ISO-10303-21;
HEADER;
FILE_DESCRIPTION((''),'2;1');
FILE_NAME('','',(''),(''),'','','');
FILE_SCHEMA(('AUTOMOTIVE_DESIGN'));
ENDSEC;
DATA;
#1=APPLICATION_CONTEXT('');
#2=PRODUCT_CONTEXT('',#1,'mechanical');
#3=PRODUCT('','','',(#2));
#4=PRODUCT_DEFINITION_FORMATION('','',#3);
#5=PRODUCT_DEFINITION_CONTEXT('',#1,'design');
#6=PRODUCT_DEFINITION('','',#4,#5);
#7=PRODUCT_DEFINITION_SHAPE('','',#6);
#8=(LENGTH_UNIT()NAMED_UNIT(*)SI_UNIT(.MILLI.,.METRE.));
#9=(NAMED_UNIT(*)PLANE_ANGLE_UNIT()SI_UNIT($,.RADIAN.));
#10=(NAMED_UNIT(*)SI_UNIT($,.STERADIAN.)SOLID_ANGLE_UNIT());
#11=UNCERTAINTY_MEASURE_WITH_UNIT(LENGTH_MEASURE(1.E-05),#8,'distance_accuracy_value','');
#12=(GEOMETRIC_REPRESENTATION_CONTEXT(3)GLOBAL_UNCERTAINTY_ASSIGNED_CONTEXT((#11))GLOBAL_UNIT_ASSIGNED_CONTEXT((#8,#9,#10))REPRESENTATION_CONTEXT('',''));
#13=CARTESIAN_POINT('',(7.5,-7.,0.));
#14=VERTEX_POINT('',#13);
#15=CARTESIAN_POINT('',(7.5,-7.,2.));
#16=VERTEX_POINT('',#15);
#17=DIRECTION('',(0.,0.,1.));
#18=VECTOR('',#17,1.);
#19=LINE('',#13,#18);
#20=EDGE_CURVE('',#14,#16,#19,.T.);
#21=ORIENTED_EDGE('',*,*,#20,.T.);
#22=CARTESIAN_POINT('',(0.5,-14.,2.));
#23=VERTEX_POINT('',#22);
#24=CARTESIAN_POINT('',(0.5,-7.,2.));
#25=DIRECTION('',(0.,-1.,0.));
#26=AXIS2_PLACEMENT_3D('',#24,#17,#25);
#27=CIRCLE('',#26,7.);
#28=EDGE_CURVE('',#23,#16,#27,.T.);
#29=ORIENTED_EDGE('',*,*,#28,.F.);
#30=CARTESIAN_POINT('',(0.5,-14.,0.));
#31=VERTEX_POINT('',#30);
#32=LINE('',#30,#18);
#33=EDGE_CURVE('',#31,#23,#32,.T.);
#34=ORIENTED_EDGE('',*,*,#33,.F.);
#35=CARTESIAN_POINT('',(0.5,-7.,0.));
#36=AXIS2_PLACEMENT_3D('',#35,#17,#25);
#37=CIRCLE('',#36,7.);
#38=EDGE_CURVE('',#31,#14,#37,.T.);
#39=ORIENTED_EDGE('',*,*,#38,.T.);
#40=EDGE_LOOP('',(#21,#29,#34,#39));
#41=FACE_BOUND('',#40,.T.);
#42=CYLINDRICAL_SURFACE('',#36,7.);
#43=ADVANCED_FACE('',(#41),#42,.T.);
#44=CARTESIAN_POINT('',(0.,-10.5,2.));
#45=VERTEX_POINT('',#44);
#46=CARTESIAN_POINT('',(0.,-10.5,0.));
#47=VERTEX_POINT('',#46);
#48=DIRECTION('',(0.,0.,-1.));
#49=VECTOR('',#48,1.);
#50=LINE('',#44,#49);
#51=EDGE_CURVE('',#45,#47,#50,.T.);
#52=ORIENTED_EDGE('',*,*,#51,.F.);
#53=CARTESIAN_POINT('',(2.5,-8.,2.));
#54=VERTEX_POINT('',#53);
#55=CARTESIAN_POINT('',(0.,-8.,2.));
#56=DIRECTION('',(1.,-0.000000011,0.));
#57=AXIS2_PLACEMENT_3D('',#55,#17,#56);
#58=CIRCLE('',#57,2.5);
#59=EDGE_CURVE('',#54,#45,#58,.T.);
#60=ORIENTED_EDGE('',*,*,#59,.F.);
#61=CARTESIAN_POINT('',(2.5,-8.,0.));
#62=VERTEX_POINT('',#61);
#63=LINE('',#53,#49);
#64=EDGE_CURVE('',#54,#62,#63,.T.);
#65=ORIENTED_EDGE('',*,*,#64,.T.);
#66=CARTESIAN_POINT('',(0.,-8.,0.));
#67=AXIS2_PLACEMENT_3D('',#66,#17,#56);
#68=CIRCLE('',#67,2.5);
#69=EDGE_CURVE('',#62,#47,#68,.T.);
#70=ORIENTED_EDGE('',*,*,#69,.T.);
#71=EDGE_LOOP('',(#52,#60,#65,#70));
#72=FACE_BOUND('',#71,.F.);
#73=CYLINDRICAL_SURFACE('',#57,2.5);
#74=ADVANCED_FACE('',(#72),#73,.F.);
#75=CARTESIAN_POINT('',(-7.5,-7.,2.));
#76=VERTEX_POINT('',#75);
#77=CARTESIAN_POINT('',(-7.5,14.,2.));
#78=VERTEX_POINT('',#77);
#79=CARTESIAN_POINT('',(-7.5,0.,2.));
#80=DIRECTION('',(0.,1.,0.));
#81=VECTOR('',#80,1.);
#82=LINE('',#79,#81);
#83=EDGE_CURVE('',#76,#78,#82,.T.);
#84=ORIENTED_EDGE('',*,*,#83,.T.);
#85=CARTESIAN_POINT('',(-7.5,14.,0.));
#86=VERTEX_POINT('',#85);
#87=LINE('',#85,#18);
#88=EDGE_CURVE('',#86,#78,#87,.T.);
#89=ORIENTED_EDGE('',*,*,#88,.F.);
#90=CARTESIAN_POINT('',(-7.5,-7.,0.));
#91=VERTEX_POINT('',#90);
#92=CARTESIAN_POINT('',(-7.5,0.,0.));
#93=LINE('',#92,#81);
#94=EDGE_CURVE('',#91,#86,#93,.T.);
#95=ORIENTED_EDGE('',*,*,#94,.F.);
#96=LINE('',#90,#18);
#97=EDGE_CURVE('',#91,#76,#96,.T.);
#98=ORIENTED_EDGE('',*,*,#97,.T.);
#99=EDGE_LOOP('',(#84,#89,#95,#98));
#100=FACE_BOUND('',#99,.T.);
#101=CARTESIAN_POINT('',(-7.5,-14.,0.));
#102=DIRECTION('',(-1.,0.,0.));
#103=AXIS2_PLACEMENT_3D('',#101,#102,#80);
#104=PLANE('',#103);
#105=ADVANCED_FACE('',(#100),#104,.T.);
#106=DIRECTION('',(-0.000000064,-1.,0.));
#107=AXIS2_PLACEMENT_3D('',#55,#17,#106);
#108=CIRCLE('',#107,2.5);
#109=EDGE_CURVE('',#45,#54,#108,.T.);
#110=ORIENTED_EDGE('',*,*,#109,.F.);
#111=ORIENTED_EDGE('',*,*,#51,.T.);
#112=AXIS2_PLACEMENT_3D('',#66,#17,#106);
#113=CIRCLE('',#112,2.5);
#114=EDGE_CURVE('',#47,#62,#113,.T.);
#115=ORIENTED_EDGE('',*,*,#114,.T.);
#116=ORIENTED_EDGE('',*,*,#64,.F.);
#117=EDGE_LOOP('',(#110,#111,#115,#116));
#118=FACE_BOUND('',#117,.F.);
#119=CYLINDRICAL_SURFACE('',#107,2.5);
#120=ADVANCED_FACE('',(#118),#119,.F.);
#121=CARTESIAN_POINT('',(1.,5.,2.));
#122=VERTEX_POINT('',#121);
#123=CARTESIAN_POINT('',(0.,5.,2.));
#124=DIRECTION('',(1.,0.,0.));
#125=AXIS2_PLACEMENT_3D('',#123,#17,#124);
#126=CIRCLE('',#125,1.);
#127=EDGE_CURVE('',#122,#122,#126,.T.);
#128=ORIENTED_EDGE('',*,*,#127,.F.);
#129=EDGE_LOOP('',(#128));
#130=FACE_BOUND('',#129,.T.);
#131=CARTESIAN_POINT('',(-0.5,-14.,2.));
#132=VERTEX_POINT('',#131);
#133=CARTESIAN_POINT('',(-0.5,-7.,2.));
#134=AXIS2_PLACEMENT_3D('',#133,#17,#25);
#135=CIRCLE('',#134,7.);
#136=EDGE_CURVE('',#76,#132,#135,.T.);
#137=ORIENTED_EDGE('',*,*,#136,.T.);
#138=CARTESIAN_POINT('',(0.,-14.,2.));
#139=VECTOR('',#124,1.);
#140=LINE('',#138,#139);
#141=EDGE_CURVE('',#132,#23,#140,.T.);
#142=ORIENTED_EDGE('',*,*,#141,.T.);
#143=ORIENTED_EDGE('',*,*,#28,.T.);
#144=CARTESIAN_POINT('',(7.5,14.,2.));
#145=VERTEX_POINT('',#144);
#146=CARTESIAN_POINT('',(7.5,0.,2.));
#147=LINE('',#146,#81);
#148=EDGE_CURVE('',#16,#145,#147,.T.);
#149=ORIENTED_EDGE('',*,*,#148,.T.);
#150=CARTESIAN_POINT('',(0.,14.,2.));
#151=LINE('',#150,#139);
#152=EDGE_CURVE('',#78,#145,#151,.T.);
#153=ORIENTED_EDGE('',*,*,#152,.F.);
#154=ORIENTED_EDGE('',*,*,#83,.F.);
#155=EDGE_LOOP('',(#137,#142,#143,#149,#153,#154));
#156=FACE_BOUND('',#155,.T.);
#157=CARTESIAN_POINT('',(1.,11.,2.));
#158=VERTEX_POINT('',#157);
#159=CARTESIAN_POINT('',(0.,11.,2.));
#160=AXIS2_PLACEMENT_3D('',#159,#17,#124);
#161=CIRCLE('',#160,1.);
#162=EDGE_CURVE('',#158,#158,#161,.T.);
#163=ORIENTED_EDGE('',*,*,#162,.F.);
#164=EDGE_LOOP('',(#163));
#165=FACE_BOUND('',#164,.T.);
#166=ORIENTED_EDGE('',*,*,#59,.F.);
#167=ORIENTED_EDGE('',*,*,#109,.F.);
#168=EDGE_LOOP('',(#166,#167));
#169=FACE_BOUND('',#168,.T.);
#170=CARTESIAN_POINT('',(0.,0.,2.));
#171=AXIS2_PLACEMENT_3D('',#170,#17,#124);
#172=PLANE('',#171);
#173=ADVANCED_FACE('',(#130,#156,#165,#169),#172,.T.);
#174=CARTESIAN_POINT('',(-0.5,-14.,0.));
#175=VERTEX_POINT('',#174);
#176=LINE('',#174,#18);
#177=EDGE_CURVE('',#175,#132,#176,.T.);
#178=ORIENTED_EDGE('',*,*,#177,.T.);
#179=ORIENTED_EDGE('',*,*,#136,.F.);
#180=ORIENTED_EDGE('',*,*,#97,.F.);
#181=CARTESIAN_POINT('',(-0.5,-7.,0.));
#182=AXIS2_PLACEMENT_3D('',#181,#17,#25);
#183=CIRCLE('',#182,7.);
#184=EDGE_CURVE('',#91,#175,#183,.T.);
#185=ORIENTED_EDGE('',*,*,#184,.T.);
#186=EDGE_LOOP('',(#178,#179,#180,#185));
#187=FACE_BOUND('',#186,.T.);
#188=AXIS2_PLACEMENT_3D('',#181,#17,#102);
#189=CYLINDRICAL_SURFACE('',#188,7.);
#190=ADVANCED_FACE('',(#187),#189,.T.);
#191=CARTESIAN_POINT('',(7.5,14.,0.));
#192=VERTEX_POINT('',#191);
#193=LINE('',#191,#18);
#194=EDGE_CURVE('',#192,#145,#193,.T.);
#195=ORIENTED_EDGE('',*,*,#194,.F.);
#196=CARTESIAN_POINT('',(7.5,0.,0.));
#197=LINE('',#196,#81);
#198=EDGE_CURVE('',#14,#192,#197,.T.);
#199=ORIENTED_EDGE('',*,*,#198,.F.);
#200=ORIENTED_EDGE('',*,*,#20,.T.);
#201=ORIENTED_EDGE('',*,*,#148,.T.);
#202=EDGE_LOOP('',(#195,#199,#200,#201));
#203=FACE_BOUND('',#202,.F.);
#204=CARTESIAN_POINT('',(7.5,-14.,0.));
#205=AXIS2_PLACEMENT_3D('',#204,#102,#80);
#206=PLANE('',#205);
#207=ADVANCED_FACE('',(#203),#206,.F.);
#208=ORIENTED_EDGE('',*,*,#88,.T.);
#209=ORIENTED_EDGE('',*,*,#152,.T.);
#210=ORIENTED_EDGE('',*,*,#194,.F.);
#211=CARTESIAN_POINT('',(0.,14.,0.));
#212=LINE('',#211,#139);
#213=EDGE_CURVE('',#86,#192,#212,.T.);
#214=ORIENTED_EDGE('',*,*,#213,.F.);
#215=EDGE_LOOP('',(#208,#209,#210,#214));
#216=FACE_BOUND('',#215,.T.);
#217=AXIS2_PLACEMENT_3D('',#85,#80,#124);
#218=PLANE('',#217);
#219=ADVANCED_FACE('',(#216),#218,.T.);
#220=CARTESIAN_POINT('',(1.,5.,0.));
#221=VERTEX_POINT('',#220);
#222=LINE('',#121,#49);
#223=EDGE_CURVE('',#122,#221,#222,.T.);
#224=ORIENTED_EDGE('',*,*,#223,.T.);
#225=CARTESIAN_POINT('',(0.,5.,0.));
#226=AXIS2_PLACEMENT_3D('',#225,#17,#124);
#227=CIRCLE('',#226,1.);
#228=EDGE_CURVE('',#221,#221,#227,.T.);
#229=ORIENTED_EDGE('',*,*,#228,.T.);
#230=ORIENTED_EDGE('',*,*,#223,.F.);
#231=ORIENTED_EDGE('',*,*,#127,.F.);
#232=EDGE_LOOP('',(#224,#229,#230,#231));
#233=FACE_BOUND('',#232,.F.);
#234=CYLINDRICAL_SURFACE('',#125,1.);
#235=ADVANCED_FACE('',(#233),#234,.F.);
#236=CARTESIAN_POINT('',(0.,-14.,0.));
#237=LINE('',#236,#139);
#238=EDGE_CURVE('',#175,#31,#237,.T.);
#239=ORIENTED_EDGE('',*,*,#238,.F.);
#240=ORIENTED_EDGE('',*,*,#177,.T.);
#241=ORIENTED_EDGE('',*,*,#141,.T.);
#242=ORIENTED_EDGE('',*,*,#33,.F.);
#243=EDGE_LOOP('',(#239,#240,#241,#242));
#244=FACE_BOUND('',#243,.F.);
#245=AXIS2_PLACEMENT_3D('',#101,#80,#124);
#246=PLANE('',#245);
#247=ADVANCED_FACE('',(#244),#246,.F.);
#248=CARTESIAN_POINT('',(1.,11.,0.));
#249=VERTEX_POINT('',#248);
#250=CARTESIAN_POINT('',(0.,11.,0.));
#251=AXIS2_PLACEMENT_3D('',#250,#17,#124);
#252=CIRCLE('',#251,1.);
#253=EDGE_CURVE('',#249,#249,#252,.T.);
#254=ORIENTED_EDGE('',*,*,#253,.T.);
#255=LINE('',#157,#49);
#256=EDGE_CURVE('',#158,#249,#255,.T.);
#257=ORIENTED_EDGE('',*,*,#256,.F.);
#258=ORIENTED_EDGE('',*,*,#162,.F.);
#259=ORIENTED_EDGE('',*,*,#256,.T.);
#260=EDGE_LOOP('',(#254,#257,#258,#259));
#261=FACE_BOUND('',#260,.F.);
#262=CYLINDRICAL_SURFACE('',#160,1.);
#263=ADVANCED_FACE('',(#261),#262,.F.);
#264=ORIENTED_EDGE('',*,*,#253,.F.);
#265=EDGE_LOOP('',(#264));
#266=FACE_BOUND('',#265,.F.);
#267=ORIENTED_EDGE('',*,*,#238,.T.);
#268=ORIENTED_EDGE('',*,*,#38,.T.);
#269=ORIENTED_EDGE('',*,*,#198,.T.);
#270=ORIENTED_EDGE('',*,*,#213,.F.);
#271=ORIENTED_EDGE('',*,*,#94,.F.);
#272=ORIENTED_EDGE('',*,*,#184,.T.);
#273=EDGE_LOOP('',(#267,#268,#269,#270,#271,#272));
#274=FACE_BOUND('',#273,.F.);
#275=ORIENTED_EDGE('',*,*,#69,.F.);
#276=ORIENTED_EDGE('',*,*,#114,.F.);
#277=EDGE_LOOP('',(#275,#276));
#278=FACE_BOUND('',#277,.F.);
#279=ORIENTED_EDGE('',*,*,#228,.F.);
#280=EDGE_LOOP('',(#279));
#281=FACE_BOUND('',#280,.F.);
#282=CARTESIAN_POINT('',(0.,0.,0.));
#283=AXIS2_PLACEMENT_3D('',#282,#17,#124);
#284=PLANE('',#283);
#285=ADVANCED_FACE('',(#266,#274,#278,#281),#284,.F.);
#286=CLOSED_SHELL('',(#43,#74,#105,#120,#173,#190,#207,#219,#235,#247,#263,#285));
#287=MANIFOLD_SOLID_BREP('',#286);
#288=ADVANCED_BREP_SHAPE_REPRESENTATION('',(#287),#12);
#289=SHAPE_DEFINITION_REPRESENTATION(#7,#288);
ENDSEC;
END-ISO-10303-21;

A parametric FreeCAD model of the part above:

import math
import FreeCAD as App
import Part
import Sketcher
from FreeCAD import Vector
Q = App.Units.Quantity


def edges_at(feature, points):
    """Names of the edges that pass closest to the given points."""
    edges = feature.Shape.Edges
    near = lambda p: min(range(len(edges)), key=lambda i: edges[i].distToShape(Part.Vertex(*p))[0])
    return sorted({f"Edge{near(p) + 1}" for p in points})

doc = App.newDocument("Part")
body = doc.addObject("PartDesign::Body", "Body")

sketch1 = body.newObject("Sketcher::SketchObject", "Sketch")
sketch1.AttachmentSupport = (doc.getObject("XY_Plane"), [""])
sketch1.MapMode = "FlatFace"
sketch1.addGeometry([
    Part.LineSegment(Vector(-8, 14, 0), Vector(-8, -14, 0)),
    Part.LineSegment(Vector(-8, -14, 0), Vector(8, -14, 0)),
    Part.LineSegment(Vector(8, -14, 0), Vector(8, 14, 0)),
    Part.LineSegment(Vector(8, 14, 0), Vector(-8, 14, 0)),
], False)
sketch1.addConstraint([
    Sketcher.Constraint("Coincident", 0, 2, 1, 1),
    Sketcher.Constraint("Coincident", 1, 2, 2, 1),
    Sketcher.Constraint("Coincident", 2, 2, 3, 1),
    Sketcher.Constraint("Coincident", 3, 2, 0, 1),
    Sketcher.Constraint("Vertical", 0),
    Sketcher.Constraint("Horizontal", 1),
    Sketcher.Constraint("Vertical", 2),
    Sketcher.Constraint("Horizontal", 3),
    Sketcher.Constraint("Symmetric", 0, 2, 2, 2, -1, 1),
    Sketcher.Constraint("DistanceX", 1, 1, 1, 2, Q("15 mm")),
    Sketcher.Constraint("DistanceY", 0, 2, 0, 1, Q("28 mm")),
])
pad1 = body.newObject("PartDesign::Pad", "Pad")
pad1.Profile = sketch1
pad1.Length = 2
doc.recompute()

fillet = body.newObject("PartDesign::Fillet", "Fillet")
fillet.Base = (pad1, edges_at(pad1, [(-7.5, -14, 1), (7.5, -14, 1)]))
fillet.Radius = 7

sketch2 = body.newObject("Sketcher::SketchObject", "Sketch001")
sketch2.AttachmentSupport = (doc.getObject("XY_Plane"), [""])
sketch2.MapMode = "FlatFace"
sketch2.AttachmentOffset = App.Placement(Vector(0, 0, 2), App.Rotation())
sketch2.addGeometry([
    Part.ArcOfCircle(Part.Circle(Vector(0, -8, 0), Vector(0, 0, 1), 2.5), math.radians(-90), math.radians(0)),
    Part.ArcOfCircle(Part.Circle(Vector(0, -8, 0), Vector(0, 0, 1), 2.5), math.radians(0), math.radians(270)),
    Part.Circle(Vector(0, 5, 0), Vector(0, 0, 1), 1),
    Part.Circle(Vector(0, 11, 0), Vector(0, 0, 1), 1),
], False)
sketch2.addConstraint([
    Sketcher.Constraint("Tangent", 0, 1, 1, 2),
    Sketcher.Constraint("Coincident", 1, 1, 0, 2),
    Sketcher.Constraint("Equal", 2, 3),
    Sketcher.Constraint("PointOnObject", 0, 3, -2),
    Sketcher.Constraint("PointOnObject", 2, 3, -2),
    Sketcher.Constraint("PointOnObject", 3, 3, -2),
    Sketcher.Constraint("PointOnObject", 0, 1, -2),
    Sketcher.Constraint("Horizontal", 0, 3, 1, 1),
    Sketcher.Constraint("Diameter", 2, Q("2 mm")),
    Sketcher.Constraint("Radius", 0, Q("2.5 mm")),
    Sketcher.Constraint("DistanceY", 0, 3, -1, 1, Q("8 mm")),
    Sketcher.Constraint("DistanceY", -1, 1, 2, 3, Q("5 mm")),
    Sketcher.Constraint("DistanceY", -1, 1, 3, 3, Q("11 mm")),
])
pocket1 = body.newObject("PartDesign::Pocket", "Pocket")
pocket1.Profile = sketch2
pocket1.Type = "ThroughAll"

doc.recompute()
